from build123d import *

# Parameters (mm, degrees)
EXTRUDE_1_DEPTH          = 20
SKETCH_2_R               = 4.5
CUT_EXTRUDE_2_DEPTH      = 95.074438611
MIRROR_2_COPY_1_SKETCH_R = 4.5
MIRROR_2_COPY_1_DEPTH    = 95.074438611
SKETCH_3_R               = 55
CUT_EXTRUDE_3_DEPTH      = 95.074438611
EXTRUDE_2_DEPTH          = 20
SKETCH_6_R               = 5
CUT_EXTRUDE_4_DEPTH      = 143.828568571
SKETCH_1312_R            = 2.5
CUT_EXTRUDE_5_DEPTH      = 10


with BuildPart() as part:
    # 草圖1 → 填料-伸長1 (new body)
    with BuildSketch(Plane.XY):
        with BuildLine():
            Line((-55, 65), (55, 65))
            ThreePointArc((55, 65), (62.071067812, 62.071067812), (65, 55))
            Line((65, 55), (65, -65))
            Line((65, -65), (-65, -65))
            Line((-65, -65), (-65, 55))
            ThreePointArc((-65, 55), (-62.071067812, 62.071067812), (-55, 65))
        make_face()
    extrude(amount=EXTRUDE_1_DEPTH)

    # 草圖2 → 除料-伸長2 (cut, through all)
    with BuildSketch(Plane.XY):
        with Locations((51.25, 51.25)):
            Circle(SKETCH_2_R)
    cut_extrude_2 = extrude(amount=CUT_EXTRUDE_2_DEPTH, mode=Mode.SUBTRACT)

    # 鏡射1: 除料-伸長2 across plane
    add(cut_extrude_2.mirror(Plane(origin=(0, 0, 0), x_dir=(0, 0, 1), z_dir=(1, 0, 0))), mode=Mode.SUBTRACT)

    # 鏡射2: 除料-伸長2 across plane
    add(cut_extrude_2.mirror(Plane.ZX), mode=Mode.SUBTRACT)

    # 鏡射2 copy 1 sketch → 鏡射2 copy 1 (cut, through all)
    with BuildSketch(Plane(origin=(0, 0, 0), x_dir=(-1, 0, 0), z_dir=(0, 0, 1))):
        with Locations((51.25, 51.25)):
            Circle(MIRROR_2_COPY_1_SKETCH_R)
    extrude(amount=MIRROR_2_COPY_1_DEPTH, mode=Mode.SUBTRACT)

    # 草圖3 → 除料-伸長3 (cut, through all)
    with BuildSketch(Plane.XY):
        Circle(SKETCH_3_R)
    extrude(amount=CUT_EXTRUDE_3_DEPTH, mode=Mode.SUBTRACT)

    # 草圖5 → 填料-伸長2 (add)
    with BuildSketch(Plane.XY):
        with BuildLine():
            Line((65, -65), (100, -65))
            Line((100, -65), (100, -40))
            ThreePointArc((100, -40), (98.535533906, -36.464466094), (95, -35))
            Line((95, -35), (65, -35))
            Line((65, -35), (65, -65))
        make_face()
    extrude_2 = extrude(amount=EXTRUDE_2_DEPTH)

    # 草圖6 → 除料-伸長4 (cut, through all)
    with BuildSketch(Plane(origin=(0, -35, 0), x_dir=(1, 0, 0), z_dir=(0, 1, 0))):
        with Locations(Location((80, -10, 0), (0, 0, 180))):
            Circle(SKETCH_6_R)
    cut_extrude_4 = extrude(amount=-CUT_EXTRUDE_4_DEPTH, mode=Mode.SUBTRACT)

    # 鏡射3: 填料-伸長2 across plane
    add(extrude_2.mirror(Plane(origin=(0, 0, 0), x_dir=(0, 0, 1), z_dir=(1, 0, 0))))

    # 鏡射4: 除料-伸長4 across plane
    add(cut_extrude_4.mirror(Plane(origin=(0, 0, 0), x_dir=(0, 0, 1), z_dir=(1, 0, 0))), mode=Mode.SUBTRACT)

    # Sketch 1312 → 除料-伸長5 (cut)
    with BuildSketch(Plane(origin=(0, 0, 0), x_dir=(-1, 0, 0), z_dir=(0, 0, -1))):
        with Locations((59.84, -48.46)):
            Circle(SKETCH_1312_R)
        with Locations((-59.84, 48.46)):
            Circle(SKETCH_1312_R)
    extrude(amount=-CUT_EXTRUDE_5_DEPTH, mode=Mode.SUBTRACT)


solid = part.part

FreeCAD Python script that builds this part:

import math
import FreeCAD as App
import Part
import Sketcher

V = App.Vector

doc = App.newDocument("Part")
body = doc.addObject("PartDesign::Body", "Body")

sketch1 = body.newObject("Sketcher::SketchObject", "Sketch")
sketch1.AttachmentSupport = (doc.getObject("XY_Plane"), [""])
sketch1.MapMode = "FlatFace"
sketch1.addGeometry(Part.LineSegment(V(55, 65, 0), V(-55, 65, 0)), False)
sketch1.addGeometry(Part.ArcOfCircle(Part.Circle(V(-55, 55, 0), V(0, 0, 1), 10), math.radians(90), math.radians(180)), False)
sketch1.addGeometry(Part.LineSegment(V(-65, 55, 0), V(-65, -65, 0)), False)
sketch1.addGeometry(Part.LineSegment(V(-65, -65, 0), V(65, -65, 0)), False)
sketch1.addGeometry(Part.LineSegment(V(65, -65, 0), V(65, 55, 0)), False)
sketch1.addGeometry(Part.ArcOfCircle(Part.Circle(V(55, 55, 0), V(0, 0, 1), 10), math.radians(0), math.radians(90)), False)
sketch1.addConstraint(Sketcher.Constraint("Tangent", 0, 2, 1, 1))
sketch1.addConstraint(Sketcher.Constraint("Tangent", 1, 2, 2, 1))
sketch1.addConstraint(Sketcher.Constraint("Coincident", 2, 2, 3, 1))
sketch1.addConstraint(Sketcher.Constraint("Coincident", 3, 2, 4, 1))
sketch1.addConstraint(Sketcher.Constraint("Tangent", 4, 2, 5, 1))
sketch1.addConstraint(Sketcher.Constraint("Tangent", 5, 2, 0, 1))
sketch1.addConstraint(Sketcher.Constraint("Horizontal", 0))
sketch1.addConstraint(Sketcher.Constraint("Vertical", 2))
sketch1.addConstraint(Sketcher.Constraint("Horizontal", 3))
sketch1.addConstraint(Sketcher.Constraint("Vertical", 4))
sketch1.addConstraint(Sketcher.Constraint("Equal", 1, 5))
sketch1.addConstraint(Sketcher.Constraint("Radius", 1, 10.0))
sketch1.addConstraint(Sketcher.Constraint("DistanceX", 0, 2, 0, 1, 110.0))
sketch1.addConstraint(Sketcher.Constraint("DistanceY", 2, 2, 2, 1, 120.0))
sketch1.addConstraint(Sketcher.Constraint("DistanceX", 1, 3, -1, 1, 55.0))
sketch1.addConstraint(Sketcher.Constraint("DistanceY", -1, 1, 1, 3, 55.0))
pad1 = body.newObject("PartDesign::Pad", "Pad")
pad1.Profile = sketch1
pad1.Length = 20

sketch2 = body.newObject("Sketcher::SketchObject", "Sketch001")
sketch2.AttachmentSupport = (doc.getObject("XY_Plane"), [""])
sketch2.MapMode = "FlatFace"
sketch2.addGeometry(Part.Circle(V(51.2, 51.2, 0), V(0, 0, 1), 4.5), False)
sketch2.addConstraint(Sketcher.Constraint("Diameter", 0, 9.0))
sketch2.addConstraint(Sketcher.Constraint("DistanceX", -1, 1, 0, 3, 51.25))
sketch2.addConstraint(Sketcher.Constraint("DistanceY", -1, 1, 0, 3, 51.25))
pocket1 = body.newObject("PartDesign::Pocket", "Pocket")
pocket1.Profile = sketch2
pocket1.Type = "ThroughAll"
pocket1.Reversed = True
doc.recompute()

mirrored = body.newObject("PartDesign::Mirrored", "Mirrored")
mirrored.Originals = [pocket1]
mirrored.MirrorPlane = (doc.getObject("YZ_Plane"), [""])
body.Tip = mirrored
doc.recompute()

mirrored2 = body.newObject("PartDesign::Mirrored", "Mirrored001")
mirrored2.Originals = [pocket1]
mirrored2.MirrorPlane = (doc.getObject("XZ_Plane"), [""])
body.Tip = mirrored2

sketch3 = body.newObject("Sketcher::SketchObject", "Sketch002")
sketch3.AttachmentSupport = (doc.getObject("XY_Plane"), [""])
sketch3.MapMode = "FlatFace"
sketch3.addGeometry(Part.Circle(V(-51.2, -51.2, 0), V(0, 0, 1), 4.5), False)
sketch3.addConstraint(Sketcher.Constraint("Diameter", 0, 9.0))
sketch3.addConstraint(Sketcher.Constraint("DistanceX", 0, 3, -1, 1, 51.25))
sketch3.addConstraint(Sketcher.Constraint("DistanceY", 0, 3, -1, 1, 51.25))
pocket2 = body.newObject("PartDesign::Pocket", "Pocket001")
pocket2.Profile = sketch3
pocket2.Type = "ThroughAll"
pocket2.Reversed = True

sketch4 = body.newObject("Sketcher::SketchObject", "Sketch003")
sketch4.AttachmentSupport = (doc.getObject("XY_Plane"), [""])
sketch4.MapMode = "FlatFace"
sketch4.addGeometry(Part.Circle(V(0, 0, 0), V(0, 0, 1), 55), False)
sketch4.addConstraint(Sketcher.Constraint("Coincident", 0, 3, -1, 1))
sketch4.addConstraint(Sketcher.Constraint("Diameter", 0, 110.0))
pocket3 = body.newObject("PartDesign::Pocket", "Pocket002")
pocket3.Profile = sketch4
pocket3.Type = "ThroughAll"
pocket3.Reversed = True

sketch5 = body.newObject("Sketcher::SketchObject", "Sketch004")
sketch5.AttachmentSupport = (doc.getObject("XY_Plane"), [""])
sketch5.MapMode = "FlatFace"
sketch5.addGeometry(Part.LineSegment(V(65, -65, 0), V(100, -65, 0)), False)
sketch5.addGeometry(Part.LineSegment(V(100, -65, 0), V(100, -40, 0)), False)
sketch5.addGeometry(Part.ArcOfCircle(Part.Circle(V(95, -40, 0), V(0, 0, 1), 5), math.radians(0), math.radians(90)), False)
sketch5.addGeometry(Part.LineSegment(V(95, -35, 0), V(65, -35, 0)), False)
sketch5.addGeometry(Part.LineSegment(V(65, -35, 0), V(65, -65, 0)), False)
sketch5.addConstraint(Sketcher.Constraint("Coincident", 0, 2, 1, 1))
sketch5.addConstraint(Sketcher.Constraint("Tangent", 1, 2, 2, 1))
sketch5.addConstraint(Sketcher.Constraint("Tangent", 2, 2, 3, 1))
sketch5.addConstraint(Sketcher.Constraint("Coincident", 3, 2, 4, 1))
sketch5.addConstraint(Sketcher.Constraint("Coincident", 4, 2, 0, 1))
sketch5.addConstraint(Sketcher.Constraint("Horizontal", 0))
sketch5.addConstraint(Sketcher.Constraint("Vertical", 1))
sketch5.addConstraint(Sketcher.Constraint("Horizontal", 3))
sketch5.addConstraint(Sketcher.Constraint("Vertical", 4))
sketch5.addConstraint(Sketcher.Constraint("Equal", 3, 4))
sketch5.addConstraint(Sketcher.Constraint("Radius", 2, 5.0))
sketch5.addConstraint(Sketcher.Constraint("DistanceX", 0, 1, 0, 2, 35.0))
sketch5.addConstraint(Sketcher.Constraint("DistanceX", -1, 1, 2, 3, 95.0))
sketch5.addConstraint(Sketcher.Constraint("DistanceY", 2, 3, -1, 1, 40.0))
pad2 = body.newObject("PartDesign::Pad", "Pad001")
pad2.Profile = sketch5
pad2.Length = 20

sketch6 = body.newObject("Sketcher::SketchObject", "Sketch005")
sketch6.AttachmentSupport = (doc.getObject("XZ_Plane"), [""])
sketch6.MapMode = "FlatFace"
sketch6.AttachmentOffset = App.Placement(V(0, 0, 35), App.Rotation())
sketch6.addGeometry(Part.Circle(V(80, 10, 0), V(0, 0, 1), 5), False)
sketch6.addConstraint(Sketcher.Constraint("Diameter", 0, 10.0))
sketch6.addConstraint(Sketcher.Constraint("DistanceX", -1, 1, 0, 3, 80.0))
sketch6.addConstraint(Sketcher.Constraint("DistanceY", -1, 1, 0, 3, 10.0))
pocket4 = body.newObject("PartDesign::Pocket", "Pocket003")
pocket4.Profile = sketch6
pocket4.Type = "ThroughAll"
pocket4.Reversed = True
doc.recompute()

mirrored3 = body.newObject("PartDesign::Mirrored", "Mirrored002")
mirrored3.Originals = [pad2]
mirrored3.MirrorPlane = (doc.getObject("YZ_Plane"), [""])
body.Tip = mirrored3
doc.recompute()

mirrored4 = body.newObject("PartDesign::Mirrored", "Mirrored003")
mirrored4.Originals = [pocket4]
mirrored4.MirrorPlane = (doc.getObject("YZ_Plane"), [""])
body.Tip = mirrored4

sketch7 = body.newObject("Sketcher::SketchObject", "Sketch006")
sketch7.AttachmentSupport = (doc.getObject("XY_Plane"), [""])
sketch7.MapMode = "FlatFace"
sketch7.addGeometry(Part.Circle(V(-59.8, -48.5, 0), V(0, 0, 1), 2.5), False)
sketch7.addGeometry(Part.Circle(V(59.8, 48.5, 0), V(0, 0, 1), 2.5), False)
sketch7.addConstraint(Sketcher.Constraint("Equal", 0, 1))
sketch7.addConstraint(Sketcher.Constraint("Symmetric", 0, 3, 1, 3, -1, 1))
sketch7.addConstraint(Sketcher.Constraint("Diameter", 0, 5.0))
sketch7.addConstraint(Sketcher.Constraint("DistanceX", 0, 3, -1, 1, 59.84))
sketch7.addConstraint(Sketcher.Constraint("DistanceY", 0, 3, -1, 1, 48.46))
pocket5 = body.newObject("PartDesign::Pocket", "Pocket004")
pocket5.Profile = sketch7
pocket5.Length = 10
pocket5.Reversed = True

doc.recompute()
